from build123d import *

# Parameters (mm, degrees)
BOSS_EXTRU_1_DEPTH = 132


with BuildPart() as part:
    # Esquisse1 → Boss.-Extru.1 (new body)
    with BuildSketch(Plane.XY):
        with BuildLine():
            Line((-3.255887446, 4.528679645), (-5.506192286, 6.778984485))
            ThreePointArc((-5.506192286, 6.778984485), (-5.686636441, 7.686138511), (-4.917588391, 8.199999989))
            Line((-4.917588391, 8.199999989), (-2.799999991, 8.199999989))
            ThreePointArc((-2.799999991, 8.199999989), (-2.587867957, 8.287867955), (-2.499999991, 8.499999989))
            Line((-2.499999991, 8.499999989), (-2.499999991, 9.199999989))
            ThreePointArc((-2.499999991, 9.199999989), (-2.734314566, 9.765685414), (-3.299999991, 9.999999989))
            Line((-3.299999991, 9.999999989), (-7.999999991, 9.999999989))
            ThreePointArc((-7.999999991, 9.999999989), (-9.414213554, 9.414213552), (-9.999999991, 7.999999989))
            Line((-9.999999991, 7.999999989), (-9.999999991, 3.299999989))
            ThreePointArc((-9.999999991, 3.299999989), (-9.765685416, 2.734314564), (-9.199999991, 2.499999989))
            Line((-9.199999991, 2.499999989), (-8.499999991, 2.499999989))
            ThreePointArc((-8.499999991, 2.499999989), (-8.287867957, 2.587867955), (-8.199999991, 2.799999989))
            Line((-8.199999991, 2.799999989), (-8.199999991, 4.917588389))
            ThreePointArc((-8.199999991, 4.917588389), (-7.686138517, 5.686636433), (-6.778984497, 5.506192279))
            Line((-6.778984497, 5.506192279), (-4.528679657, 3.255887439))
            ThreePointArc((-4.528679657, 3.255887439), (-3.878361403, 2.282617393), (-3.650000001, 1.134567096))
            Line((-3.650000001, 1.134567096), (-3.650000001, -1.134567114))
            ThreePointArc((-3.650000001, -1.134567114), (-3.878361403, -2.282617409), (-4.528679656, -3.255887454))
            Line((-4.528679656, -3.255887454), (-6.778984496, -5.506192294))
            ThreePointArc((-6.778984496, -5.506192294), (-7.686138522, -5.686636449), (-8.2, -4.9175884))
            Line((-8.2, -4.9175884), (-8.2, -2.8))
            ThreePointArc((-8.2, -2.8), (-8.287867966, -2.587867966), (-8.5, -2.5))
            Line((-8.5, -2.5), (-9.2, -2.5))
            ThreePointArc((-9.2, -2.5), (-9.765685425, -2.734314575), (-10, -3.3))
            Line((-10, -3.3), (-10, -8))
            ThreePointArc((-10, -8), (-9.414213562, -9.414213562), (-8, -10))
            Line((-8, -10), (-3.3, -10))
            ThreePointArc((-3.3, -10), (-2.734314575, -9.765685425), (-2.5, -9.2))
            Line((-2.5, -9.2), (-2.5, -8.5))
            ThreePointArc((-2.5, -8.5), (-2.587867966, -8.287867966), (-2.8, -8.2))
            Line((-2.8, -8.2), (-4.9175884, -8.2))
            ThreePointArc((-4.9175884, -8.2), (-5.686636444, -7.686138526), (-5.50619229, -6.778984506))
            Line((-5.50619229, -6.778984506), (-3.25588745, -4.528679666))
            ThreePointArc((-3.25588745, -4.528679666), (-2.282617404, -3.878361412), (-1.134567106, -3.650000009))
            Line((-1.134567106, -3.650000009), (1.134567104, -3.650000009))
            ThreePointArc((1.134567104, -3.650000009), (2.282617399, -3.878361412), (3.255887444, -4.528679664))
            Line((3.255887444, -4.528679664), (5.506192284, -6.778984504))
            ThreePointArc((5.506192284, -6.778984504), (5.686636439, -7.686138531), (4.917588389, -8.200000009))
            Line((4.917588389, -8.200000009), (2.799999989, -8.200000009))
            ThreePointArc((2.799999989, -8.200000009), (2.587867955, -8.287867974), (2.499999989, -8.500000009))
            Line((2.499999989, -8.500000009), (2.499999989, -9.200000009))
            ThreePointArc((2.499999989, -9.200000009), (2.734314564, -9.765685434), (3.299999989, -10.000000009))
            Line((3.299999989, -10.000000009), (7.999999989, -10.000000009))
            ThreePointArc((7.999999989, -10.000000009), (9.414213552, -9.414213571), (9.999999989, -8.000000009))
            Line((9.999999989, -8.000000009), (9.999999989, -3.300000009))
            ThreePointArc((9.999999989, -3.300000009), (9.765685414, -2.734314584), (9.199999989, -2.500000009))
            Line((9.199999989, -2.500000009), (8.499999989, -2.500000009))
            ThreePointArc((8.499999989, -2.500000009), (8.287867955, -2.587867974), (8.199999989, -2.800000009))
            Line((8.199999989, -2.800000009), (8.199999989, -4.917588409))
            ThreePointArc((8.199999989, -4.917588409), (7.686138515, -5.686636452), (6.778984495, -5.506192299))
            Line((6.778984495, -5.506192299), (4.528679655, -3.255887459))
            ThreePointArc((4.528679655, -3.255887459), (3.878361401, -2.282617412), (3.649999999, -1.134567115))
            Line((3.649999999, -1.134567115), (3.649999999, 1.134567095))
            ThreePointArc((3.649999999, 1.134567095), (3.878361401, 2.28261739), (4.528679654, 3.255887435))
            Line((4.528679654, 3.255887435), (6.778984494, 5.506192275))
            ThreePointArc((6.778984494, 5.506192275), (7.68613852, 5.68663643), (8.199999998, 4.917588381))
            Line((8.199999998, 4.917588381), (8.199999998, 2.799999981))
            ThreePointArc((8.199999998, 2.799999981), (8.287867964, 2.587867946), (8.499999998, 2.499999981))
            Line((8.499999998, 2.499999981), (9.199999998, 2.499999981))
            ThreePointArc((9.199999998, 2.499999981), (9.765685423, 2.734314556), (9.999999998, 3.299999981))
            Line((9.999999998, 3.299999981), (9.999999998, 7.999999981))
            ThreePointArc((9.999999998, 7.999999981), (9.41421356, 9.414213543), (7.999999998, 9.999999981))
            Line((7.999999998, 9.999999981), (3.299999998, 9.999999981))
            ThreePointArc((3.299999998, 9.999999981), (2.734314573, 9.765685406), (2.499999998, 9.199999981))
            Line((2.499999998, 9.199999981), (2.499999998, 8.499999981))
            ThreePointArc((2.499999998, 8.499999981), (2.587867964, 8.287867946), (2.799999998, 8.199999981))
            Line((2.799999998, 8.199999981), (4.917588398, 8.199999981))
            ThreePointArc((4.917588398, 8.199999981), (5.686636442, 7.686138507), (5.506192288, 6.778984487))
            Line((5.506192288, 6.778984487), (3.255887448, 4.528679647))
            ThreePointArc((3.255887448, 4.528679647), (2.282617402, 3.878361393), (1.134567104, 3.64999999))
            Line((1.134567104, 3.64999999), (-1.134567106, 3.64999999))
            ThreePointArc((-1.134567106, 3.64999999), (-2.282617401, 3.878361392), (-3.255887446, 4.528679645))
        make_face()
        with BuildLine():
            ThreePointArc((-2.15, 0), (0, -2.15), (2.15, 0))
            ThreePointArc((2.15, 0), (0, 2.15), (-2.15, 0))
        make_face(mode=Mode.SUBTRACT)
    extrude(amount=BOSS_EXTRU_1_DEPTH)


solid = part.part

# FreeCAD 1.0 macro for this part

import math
import FreeCAD as App
import Part
import Sketcher
from FreeCAD import Vector
Q = App.Units.Quantity

doc = App.newDocument("Part")
body = doc.addObject("PartDesign::Body", "Body")

# Sketch on XY plane
sketch1 = body.newObject("Sketcher::SketchObject", "Sketch")
sketch1.AttachmentSupport = (doc.getObject("XY_Plane"), [""])
sketch1.MapMode = "FlatFace"
sketch1.addGeometry([
    Part.LineSegment(Vector(-3.255887, 4.52868, 0), Vector(-5.506192, 6.778984, 0)),  # 0
    Part.ArcOfCircle(Part.Circle(Vector(-4.917588, 7.367588, 0), Vector(0, 0, 1), 0.832412), math.radians(90), math.radians(225)),  # 1
    Part.LineSegment(Vector(-4.917588, 8.2, 0), Vector(-2.8, 8.2, 0)),  # 2
    Part.ArcOfCircle(Part.Circle(Vector(-2.8, 8.5, 0), Vector(0, 0, 1), 0.3), math.radians(-90), math.radians(0)),  # 3
    Part.LineSegment(Vector(-2.5, 8.5, 0), Vector(-2.5, 9.2, 0)),  # 4
    Part.ArcOfCircle(Part.Circle(Vector(-3.3, 9.2, 0), Vector(0, 0, 1), 0.8), math.radians(0), math.radians(90)),  # 5
    Part.LineSegment(Vector(-3.3, 10, 0), Vector(-8, 10, 0)),  # 6
    Part.ArcOfCircle(Part.Circle(Vector(-8, 8, 0), Vector(0, 0, 1), 2), math.radians(90), math.radians(180)),  # 7
    Part.LineSegment(Vector(-10, 8, 0), Vector(-10, 3.3, 0)),  # 8
    Part.ArcOfCircle(Part.Circle(Vector(-9.2, 3.3, 0), Vector(0, 0, 1), 0.8), math.radians(180), math.radians(270)),  # 9
    Part.LineSegment(Vector(-9.2, 2.5, 0), Vector(-8.5, 2.5, 0)),  # 10
    Part.ArcOfCircle(Part.Circle(Vector(-8.5, 2.8, 0), Vector(0, 0, 1), 0.3), math.radians(-90), math.radians(0)),  # 11
    Part.LineSegment(Vector(-8.2, 2.8, 0), Vector(-8.2, 4.917588, 0)),  # 12
    Part.ArcOfCircle(Part.Circle(Vector(-7.367588, 4.917588, 0), Vector(0, 0, 1), 0.832412), math.radians(45), math.radians(180)),  # 13
    Part.LineSegment(Vector(-6.778984, 5.506192, 0), Vector(-4.52868, 3.255887, 0)),  # 14
    Part.ArcOfCircle(Part.Circle(Vector(-6.65, 1.134567, 0), Vector(0, 0, 1), 3), math.radians(0), math.radians(45)),  # 15
    Part.LineSegment(Vector(-3.65, 1.134567, 0), Vector(-3.65, -1.134567, 0)),  # 16
    Part.ArcOfCircle(Part.Circle(Vector(-6.65, -1.134567, 0), Vector(0, 0, 1), 3), math.radians(-45), math.radians(0)),  # 17
    Part.LineSegment(Vector(-4.52868, -3.255887, 0), Vector(-6.778984, -5.506192, 0)),  # 18
    Part.ArcOfCircle(Part.Circle(Vector(-7.367588, -4.917588, 0), Vector(0, 0, 1), 0.832412), math.radians(180), math.radians(315)),  # 19
    Part.LineSegment(Vector(-8.2, -4.917588, 0), Vector(-8.2, -2.8, 0)),  # 20
    Part.ArcOfCircle(Part.Circle(Vector(-8.5, -2.8, 0), Vector(0, 0, 1), 0.3), math.radians(0), math.radians(90)),  # 21
    Part.LineSegment(Vector(-8.5, -2.5, 0), Vector(-9.2, -2.5, 0)),  # 22
    Part.ArcOfCircle(Part.Circle(Vector(-9.2, -3.3, 0), Vector(0, 0, 1), 0.8), math.radians(90), math.radians(180)),  # 23
    Part.LineSegment(Vector(-10, -3.3, 0), Vector(-10, -8, 0)),  # 24
    Part.ArcOfCircle(Part.Circle(Vector(-8, -8, 0), Vector(0, 0, 1), 2), math.radians(-180), math.radians(-90)),  # 25
    Part.LineSegment(Vector(-8, -10, 0), Vector(-3.3, -10, 0)),  # 26
    Part.ArcOfCircle(Part.Circle(Vector(-3.3, -9.2, 0), Vector(0, 0, 1), 0.8), math.radians(-90), math.radians(0)),  # 27
    Part.LineSegment(Vector(-2.5, -9.2, 0), Vector(-2.5, -8.5, 0)),  # 28
    Part.ArcOfCircle(Part.Circle(Vector(-2.8, -8.5, 0), Vector(0, 0, 1), 0.3), math.radians(0), math.radians(90)),  # 29
    Part.LineSegment(Vector(-2.8, -8.2, 0), Vector(-4.917588, -8.2, 0)),  # 30
    Part.ArcOfCircle(Part.Circle(Vector(-4.917588, -7.367588, 0), Vector(0, 0, 1), 0.832412), math.radians(135), math.radians(270)),  # 31
    Part.LineSegment(Vector(-5.506192, -6.778985, 0), Vector(-3.255887, -4.52868, 0)),  # 32
    Part.ArcOfCircle(Part.Circle(Vector(-1.134567, -6.65, 0), Vector(0, 0, 1), 3), math.radians(90), math.radians(135)),  # 33
    Part.LineSegment(Vector(-1.134567, -3.65, 0), Vector(1.134567, -3.65, 0)),  # 34
    Part.ArcOfCircle(Part.Circle(Vector(1.134567, -6.65, 0), Vector(0, 0, 1), 3), math.radians(45), math.radians(90)),  # 35
    Part.LineSegment(Vector(3.255887, -4.52868, 0), Vector(5.506192, -6.778985, 0)),  # 36
    Part.ArcOfCircle(Part.Circle(Vector(4.917588, -7.367588, 0), Vector(0, 0, 1), 0.832412), math.radians(-90), math.radians(45)),  # 37
    Part.LineSegment(Vector(4.917588, -8.2, 0), Vector(2.8, -8.2, 0)),  # 38
    Part.ArcOfCircle(Part.Circle(Vector(2.8, -8.5, 0), Vector(0, 0, 1), 0.3), math.radians(90), math.radians(180)),  # 39
    Part.LineSegment(Vector(2.5, -8.5, 0), Vector(2.5, -9.2, 0)),  # 40
    Part.ArcOfCircle(Part.Circle(Vector(3.3, -9.2, 0), Vector(0, 0, 1), 0.8), math.radians(180), math.radians(270)),  # 41
    Part.LineSegment(Vector(3.3, -10, 0), Vector(8, -10, 0)),  # 42
    Part.ArcOfCircle(Part.Circle(Vector(8, -8, 0), Vector(0, 0, 1), 2), math.radians(-90), math.radians(0)),  # 43
    Part.LineSegment(Vector(10, -8, 0), Vector(10, -3.3, 0)),  # 44
    Part.ArcOfCircle(Part.Circle(Vector(9.2, -3.3, 0), Vector(0, 0, 1), 0.8), math.radians(0), math.radians(90)),  # 45
    Part.LineSegment(Vector(9.2, -2.5, 0), Vector(8.5, -2.5, 0)),  # 46
    Part.ArcOfCircle(Part.Circle(Vector(8.5, -2.8, 0), Vector(0, 0, 1), 0.3), math.radians(90), math.radians(180)),  # 47
    Part.LineSegment(Vector(8.2, -2.8, 0), Vector(8.2, -4.917588, 0)),  # 48
    Part.ArcOfCircle(Part.Circle(Vector(7.367588, -4.917588, 0), Vector(0, 0, 1), 0.832412), math.radians(-135), math.radians(0)),  # 49
    Part.LineSegment(Vector(6.778984, -5.506192, 0), Vector(4.52868, -3.255887, 0)),  # 50
    Part.ArcOfCircle(Part.Circle(Vector(6.65, -1.134567, 0), Vector(0, 0, 1), 3), math.radians(180), math.radians(225)),  # 51
    Part.LineSegment(Vector(3.65, -1.134567, 0), Vector(3.65, 1.134567, 0)),  # 52
    Part.ArcOfCircle(Part.Circle(Vector(6.65, 1.134567, 0), Vector(0, 0, 1), 3), math.radians(135), math.radians(180)),  # 53
    Part.LineSegment(Vector(4.52868, 3.255887, 0), Vector(6.778984, 5.506192, 0)),  # 54
    Part.ArcOfCircle(Part.Circle(Vector(7.367588, 4.917588, 0), Vector(0, 0, 1), 0.832412), math.radians(0), math.radians(135)),  # 55
    Part.LineSegment(Vector(8.2, 4.917588, 0), Vector(8.2, 2.8, 0)),  # 56
    Part.ArcOfCircle(Part.Circle(Vector(8.5, 2.8, 0), Vector(0, 0, 1), 0.3), math.radians(180), math.radians(270)),  # 57
    Part.LineSegment(Vector(8.5, 2.5, 0), Vector(9.2, 2.5, 0)),  # 58
    Part.ArcOfCircle(Part.Circle(Vector(9.2, 3.3, 0), Vector(0, 0, 1), 0.8), math.radians(-90), math.radians(0)),  # 59
    Part.LineSegment(Vector(10, 3.3, 0), Vector(10, 8, 0)),  # 60
    Part.ArcOfCircle(Part.Circle(Vector(8, 8, 0), Vector(0, 0, 1), 2), math.radians(0), math.radians(90)),  # 61
    Part.LineSegment(Vector(8, 10, 0), Vector(3.3, 10, 0)),  # 62
    Part.ArcOfCircle(Part.Circle(Vector(3.3, 9.2, 0), Vector(0, 0, 1), 0.8), math.radians(90), math.radians(180)),  # 63
    Part.LineSegment(Vector(2.5, 9.2, 0), Vector(2.5, 8.5, 0)),  # 64
    Part.ArcOfCircle(Part.Circle(Vector(2.8, 8.5, 0), Vector(0, 0, 1), 0.3), math.radians(180), math.radians(270)),  # 65
    Part.LineSegment(Vector(2.8, 8.2, 0), Vector(4.917588, 8.2, 0)),  # 66
    Part.ArcOfCircle(Part.Circle(Vector(4.917588, 7.367588, 0), Vector(0, 0, 1), 0.832412), math.radians(-45), math.radians(90)),  # 67
    Part.LineSegment(Vector(5.506192, 6.778984, 0), Vector(3.255887, 4.52868, 0)),  # 68
    Part.ArcOfCircle(Part.Circle(Vector(1.134567, 6.65, 0), Vector(0, 0, 1), 3), math.radians(-90), math.radians(-45)),  # 69
    Part.LineSegment(Vector(1.134567, 3.65, 0), Vector(-1.134567, 3.65, 0)),  # 70
    Part.ArcOfCircle(Part.Circle(Vector(-1.134567, 6.65, 0), Vector(0, 0, 1), 3), math.radians(-135), math.radians(-90)),  # 71
    Part.Circle(Vector(0, 0, 0), Vector(0, 0, 1), 2.15),  # 72
], False)
sketch1.addConstraint([
    Sketcher.Constraint("Tangent", 0, 2, 1, 2),
    Sketcher.Constraint("Tangent", 1, 1, 2, 1),
    Sketcher.Constraint("Tangent", 2, 2, 3, 1),
    Sketcher.Constraint("Tangent", 3, 2, 4, 1),
    Sketcher.Constraint("Tangent", 4, 2, 5, 1),
    Sketcher.Constraint("Tangent", 5, 2, 6, 1),
    Sketcher.Constraint("Tangent", 6, 2, 7, 1),
    Sketcher.Constraint("Tangent", 7, 2, 8, 1),
    Sketcher.Constraint("Tangent", 8, 2, 9, 1),
    Sketcher.Constraint("Tangent", 9, 2, 10, 1),
    Sketcher.Constraint("Tangent", 10, 2, 11, 1),
    Sketcher.Constraint("Tangent", 11, 2, 12, 1),
    Sketcher.Constraint("Tangent", 12, 2, 13, 2),
    Sketcher.Constraint("Tangent", 13, 1, 14, 1),
    Sketcher.Constraint("Tangent", 14, 2, 15, 2),
    Sketcher.Constraint("Tangent", 15, 1, 16, 1),
    Sketcher.Constraint("Tangent", 16, 2, 17, 2),
    Sketcher.Constraint("Tangent", 17, 1, 18, 1),
    Sketcher.Constraint("Tangent", 18, 2, 19, 2),
    Sketcher.Constraint("Tangent", 19, 1, 20, 1),
    Sketcher.Constraint("Tangent", 20, 2, 21, 1),
    Sketcher.Constraint("Tangent", 21, 2, 22, 1),
    Sketcher.Constraint("Tangent", 22, 2, 23, 1),
    Sketcher.Constraint("Tangent", 23, 2, 24, 1),
    Sketcher.Constraint("Tangent", 24, 2, 25, 1),
    Sketcher.Constraint("Tangent", 25, 2, 26, 1),
    Sketcher.Constraint("Tangent", 26, 2, 27, 1),
    Sketcher.Constraint("Tangent", 27, 2, 28, 1),
    Sketcher.Constraint("Tangent", 28, 2, 29, 1),
    Sketcher.Constraint("Tangent", 29, 2, 30, 1),
    Sketcher.Constraint("Tangent", 30, 2, 31, 2),
    Sketcher.Constraint("Tangent", 31, 1, 32, 1),
    Sketcher.Constraint("Tangent", 32, 2, 33, 2),
    Sketcher.Constraint("Tangent", 33, 1, 34, 1),
    Sketcher.Constraint("Tangent", 34, 2, 35, 2),
    Sketcher.Constraint("Tangent", 35, 1, 36, 1),
    Sketcher.Constraint("Tangent", 36, 2, 37, 2),
    Sketcher.Constraint("Tangent", 37, 1, 38, 1),
    Sketcher.Constraint("Tangent", 38, 2, 39, 1),
    Sketcher.Constraint("Tangent", 39, 2, 40, 1),
    Sketcher.Constraint("Tangent", 40, 2, 41, 1),
    Sketcher.Constraint("Tangent", 41, 2, 42, 1),
    Sketcher.Constraint("Tangent", 42, 2, 43, 1),
    Sketcher.Constraint("Tangent", 43, 2, 44, 1),
    Sketcher.Constraint("Tangent", 44, 2, 45, 1),
    Sketcher.Constraint("Tangent", 45, 2, 46, 1),
    Sketcher.Constraint("Tangent", 46, 2, 47, 1),
    Sketcher.Constraint("Tangent", 47, 2, 48, 1),
    Sketcher.Constraint("Tangent", 48, 2, 49, 2),
    Sketcher.Constraint("Tangent", 49, 1, 50, 1),
    Sketcher.Constraint("Tangent", 50, 2, 51, 2),
    Sketcher.Constraint("Tangent", 51, 1, 52, 1),
    Sketcher.Constraint("Tangent", 52, 2, 53, 2),
    Sketcher.Constraint("Tangent", 53, 1, 54, 1),
    Sketcher.Constraint("Tangent", 54, 2, 55, 2),
    Sketcher.Constraint("Tangent", 55, 1, 56, 1),
    Sketcher.Constraint("Tangent", 56, 2, 57, 1),
    Sketcher.Constraint("Tangent", 57, 2, 58, 1),
    Sketcher.Constraint("Tangent", 58, 2, 59, 1),
    Sketcher.Constraint("Tangent", 59, 2, 60, 1),
    Sketcher.Constraint("Tangent", 60, 2, 61, 1),
    Sketcher.Constraint("Tangent", 61, 2, 62, 1),
    Sketcher.Constraint("Tangent", 62, 2, 63, 1),
    Sketcher.Constraint("Tangent", 63, 2, 64, 1),
    Sketcher.Constraint("Tangent", 64, 2, 65, 1),
    Sketcher.Constraint("Tangent", 65, 2, 66, 1),
    Sketcher.Constraint("Tangent", 66, 2, 67, 2),
    Sketcher.Constraint("Tangent", 67, 1, 68, 1),
    Sketcher.Constraint("Tangent", 68, 2, 69, 2),
    Sketcher.Constraint("Tangent", 69, 1, 70, 1),
    Sketcher.Constraint("Tangent", 70, 2, 71, 2),
    Sketcher.Constraint("Tangent", 71, 1, 0, 1),
    Sketcher.Constraint("Horizontal", 2),
    Sketcher.Constraint("Vertical", 4),
    Sketcher.Constraint("Horizontal", 6),
    Sketcher.Constraint("Vertical", 8),
    Sketcher.Constraint("Horizontal", 10),
    Sketcher.Constraint("Vertical", 12),
    Sketcher.Constraint("Vertical", 16),
    Sketcher.Constraint("Vertical", 20),
    Sketcher.Constraint("Horizontal", 22),
    Sketcher.Constraint("Vertical", 24),
    Sketcher.Constraint("Horizontal", 26),
    Sketcher.Constraint("Vertical", 28),
    Sketcher.Constraint("Horizontal", 30),
    Sketcher.Constraint("Horizontal", 34),
    Sketcher.Constraint("Horizontal", 38),
    Sketcher.Constraint("Vertical", 40),
    Sketcher.Constraint("Horizontal", 42),
    Sketcher.Constraint("Vertical", 44),
    Sketcher.Constraint("Horizontal", 46),
    Sketcher.Constraint("Vertical", 48),
    Sketcher.Constraint("Vertical", 52),
    Sketcher.Constraint("Vertical", 56),
    Sketcher.Constraint("Horizontal", 58),
    Sketcher.Constraint("Vertical", 60),
    Sketcher.Constraint("Horizontal", 62),
    Sketcher.Constraint("Vertical", 64),
    Sketcher.Constraint("Horizontal", 66),
    Sketcher.Constraint("Horizontal", 70),
    Sketcher.Constraint("Coincident", 72, 3, -1, 1),
    Sketcher.Constraint("Equal", 5, 9),
    Sketcher.Constraint("Equal", 3, 11),
    Sketcher.Constraint("Equal", 1, 13),
    Sketcher.Constraint("Equal", 15, 17),
    Sketcher.Constraint("Equal", 13, 19),
    Sketcher.Constraint("Equal", 11, 21),
    Sketcher.Constraint("Equal", 9, 23),
    Sketcher.Constraint("Equal", 7, 25),
    Sketcher.Constraint("Equal", 23, 27),
    Sketcher.Constraint("Equal", 21, 29),
    Sketcher.Constraint("Equal", 19, 31),
    Sketcher.Constraint("Equal", 17, 33),
    Sketcher.Constraint("Equal", 33, 35),
    Sketcher.Constraint("Equal", 31, 37),
    Sketcher.Constraint("Equal", 29, 39),
    Sketcher.Constraint("Equal", 27, 41),
    Sketcher.Constraint("Equal", 25, 43),
    Sketcher.Constraint("Equal", 41, 45),
    Sketcher.Constraint("Equal", 39, 47),
    Sketcher.Constraint("Equal", 37, 49),
    Sketcher.Constraint("Equal", 35, 51),
    Sketcher.Constraint("Equal", 51, 53),
    Sketcher.Constraint("Equal", 49, 55),
    Sketcher.Constraint("Equal", 47, 57),
    Sketcher.Constraint("Equal", 45, 59),
    Sketcher.Constraint("Equal", 43, 61),
    Sketcher.Constraint("Equal", 59, 63),
    Sketcher.Constraint("Equal", 57, 65),
    Sketcher.Constraint("Equal", 55, 67),
    Sketcher.Constraint("Equal", 53, 69),
    Sketcher.Constraint("Equal", 69, 71),
    Sketcher.Constraint("Symmetric", 1, 3, 37, 3, -1, 1),
    Sketcher.Constraint("Symmetric", 5, 3, 41, 3, -1, 1),
    Sketcher.Constraint("Symmetric", 9, 3, 45, 3, -1, 1),
    Sketcher.Constraint("Symmetric", 13, 3, 49, 3, -1, 1),
    Sketcher.Constraint("Symmetric", 15, 3, 51, 3, -1, 1),
    Sketcher.Constraint("Symmetric", 19, 3, 55, 3, -1, 1),
    Sketcher.Constraint("Symmetric", 23, 3, 59, 3, -1, 1),
    Sketcher.Constraint("Symmetric", 27, 3, 63, 3, -1, 1),
    Sketcher.Constraint("Symmetric", 31, 3, 67, 3, -1, 1),
    Sketcher.Constraint("Symmetric", 33, 3, 69, 3, -1, 1),
    Sketcher.Constraint("Symmetric", 31, 3, 37, 3, -2),
    Sketcher.Constraint("Symmetric", 27, 3, 41, 3, -2),
    Sketcher.Constraint("Symmetric", 23, 3, 45, 3, -2),
    Sketcher.Constraint("Symmetric", 19, 3, 49, 3, -2),
    Sketcher.Constraint("Parallel", 0, 14),
    Sketcher.Constraint("Perpendicular", 14, 18),
    Sketcher.Constraint("Parallel", 18, 32),
    Sketcher.Constraint("Perpendicular", 32, 36),
    Sketcher.Constraint("Perpendicular", 50, 54),
    Sketcher.Constraint("Horizontal", 17, 3, 51, 3),
    Sketcher.Constraint("Equal", 58, 4),
    Sketcher.Constraint("Equal", 62, 8),
    Sketcher.Constraint("Equal", 66, 12),
    Sketcher.Constraint("Equal", 70, 16),
    Sketcher.Constraint("Equal", 0, 14),
    Sketcher.Constraint("Radius", 7, Q("2 mm")),
    Sketcher.Constraint("Radius", 15, Q("3 mm")),
    Sketcher.Constraint("Diameter", 72, Q("4.3 mm")),
    Sketcher.Constraint("Radius", 3, Q("0.3 mm")),
    Sketcher.Constraint("Radius", 5, Q("0.8 mm")),
    Sketcher.Constraint("DistanceX", 6, 2, 6, 1, Q("4.7 mm")),
    Sketcher.Constraint("DistanceX", 10, 1, 10, 2, Q("0.7 mm")),
    Sketcher.Constraint("DistanceX", 7, 3, -1, 1, Q("8 mm")),
    Sketcher.Constraint("DistanceX", 15, 3, -1, 1, Q("6.65 mm")),
    Sketcher.Constraint("Radius", 1, Q("0.832412 mm")),
    Sketcher.Constraint("DistanceX", 2, 1, 2, 2, Q("2.117588 mm")),
])
pad1 = body.newObject("PartDesign::Pad", "Pad")
pad1.Profile = sketch1
pad1.Length = 132

doc.recompute()
